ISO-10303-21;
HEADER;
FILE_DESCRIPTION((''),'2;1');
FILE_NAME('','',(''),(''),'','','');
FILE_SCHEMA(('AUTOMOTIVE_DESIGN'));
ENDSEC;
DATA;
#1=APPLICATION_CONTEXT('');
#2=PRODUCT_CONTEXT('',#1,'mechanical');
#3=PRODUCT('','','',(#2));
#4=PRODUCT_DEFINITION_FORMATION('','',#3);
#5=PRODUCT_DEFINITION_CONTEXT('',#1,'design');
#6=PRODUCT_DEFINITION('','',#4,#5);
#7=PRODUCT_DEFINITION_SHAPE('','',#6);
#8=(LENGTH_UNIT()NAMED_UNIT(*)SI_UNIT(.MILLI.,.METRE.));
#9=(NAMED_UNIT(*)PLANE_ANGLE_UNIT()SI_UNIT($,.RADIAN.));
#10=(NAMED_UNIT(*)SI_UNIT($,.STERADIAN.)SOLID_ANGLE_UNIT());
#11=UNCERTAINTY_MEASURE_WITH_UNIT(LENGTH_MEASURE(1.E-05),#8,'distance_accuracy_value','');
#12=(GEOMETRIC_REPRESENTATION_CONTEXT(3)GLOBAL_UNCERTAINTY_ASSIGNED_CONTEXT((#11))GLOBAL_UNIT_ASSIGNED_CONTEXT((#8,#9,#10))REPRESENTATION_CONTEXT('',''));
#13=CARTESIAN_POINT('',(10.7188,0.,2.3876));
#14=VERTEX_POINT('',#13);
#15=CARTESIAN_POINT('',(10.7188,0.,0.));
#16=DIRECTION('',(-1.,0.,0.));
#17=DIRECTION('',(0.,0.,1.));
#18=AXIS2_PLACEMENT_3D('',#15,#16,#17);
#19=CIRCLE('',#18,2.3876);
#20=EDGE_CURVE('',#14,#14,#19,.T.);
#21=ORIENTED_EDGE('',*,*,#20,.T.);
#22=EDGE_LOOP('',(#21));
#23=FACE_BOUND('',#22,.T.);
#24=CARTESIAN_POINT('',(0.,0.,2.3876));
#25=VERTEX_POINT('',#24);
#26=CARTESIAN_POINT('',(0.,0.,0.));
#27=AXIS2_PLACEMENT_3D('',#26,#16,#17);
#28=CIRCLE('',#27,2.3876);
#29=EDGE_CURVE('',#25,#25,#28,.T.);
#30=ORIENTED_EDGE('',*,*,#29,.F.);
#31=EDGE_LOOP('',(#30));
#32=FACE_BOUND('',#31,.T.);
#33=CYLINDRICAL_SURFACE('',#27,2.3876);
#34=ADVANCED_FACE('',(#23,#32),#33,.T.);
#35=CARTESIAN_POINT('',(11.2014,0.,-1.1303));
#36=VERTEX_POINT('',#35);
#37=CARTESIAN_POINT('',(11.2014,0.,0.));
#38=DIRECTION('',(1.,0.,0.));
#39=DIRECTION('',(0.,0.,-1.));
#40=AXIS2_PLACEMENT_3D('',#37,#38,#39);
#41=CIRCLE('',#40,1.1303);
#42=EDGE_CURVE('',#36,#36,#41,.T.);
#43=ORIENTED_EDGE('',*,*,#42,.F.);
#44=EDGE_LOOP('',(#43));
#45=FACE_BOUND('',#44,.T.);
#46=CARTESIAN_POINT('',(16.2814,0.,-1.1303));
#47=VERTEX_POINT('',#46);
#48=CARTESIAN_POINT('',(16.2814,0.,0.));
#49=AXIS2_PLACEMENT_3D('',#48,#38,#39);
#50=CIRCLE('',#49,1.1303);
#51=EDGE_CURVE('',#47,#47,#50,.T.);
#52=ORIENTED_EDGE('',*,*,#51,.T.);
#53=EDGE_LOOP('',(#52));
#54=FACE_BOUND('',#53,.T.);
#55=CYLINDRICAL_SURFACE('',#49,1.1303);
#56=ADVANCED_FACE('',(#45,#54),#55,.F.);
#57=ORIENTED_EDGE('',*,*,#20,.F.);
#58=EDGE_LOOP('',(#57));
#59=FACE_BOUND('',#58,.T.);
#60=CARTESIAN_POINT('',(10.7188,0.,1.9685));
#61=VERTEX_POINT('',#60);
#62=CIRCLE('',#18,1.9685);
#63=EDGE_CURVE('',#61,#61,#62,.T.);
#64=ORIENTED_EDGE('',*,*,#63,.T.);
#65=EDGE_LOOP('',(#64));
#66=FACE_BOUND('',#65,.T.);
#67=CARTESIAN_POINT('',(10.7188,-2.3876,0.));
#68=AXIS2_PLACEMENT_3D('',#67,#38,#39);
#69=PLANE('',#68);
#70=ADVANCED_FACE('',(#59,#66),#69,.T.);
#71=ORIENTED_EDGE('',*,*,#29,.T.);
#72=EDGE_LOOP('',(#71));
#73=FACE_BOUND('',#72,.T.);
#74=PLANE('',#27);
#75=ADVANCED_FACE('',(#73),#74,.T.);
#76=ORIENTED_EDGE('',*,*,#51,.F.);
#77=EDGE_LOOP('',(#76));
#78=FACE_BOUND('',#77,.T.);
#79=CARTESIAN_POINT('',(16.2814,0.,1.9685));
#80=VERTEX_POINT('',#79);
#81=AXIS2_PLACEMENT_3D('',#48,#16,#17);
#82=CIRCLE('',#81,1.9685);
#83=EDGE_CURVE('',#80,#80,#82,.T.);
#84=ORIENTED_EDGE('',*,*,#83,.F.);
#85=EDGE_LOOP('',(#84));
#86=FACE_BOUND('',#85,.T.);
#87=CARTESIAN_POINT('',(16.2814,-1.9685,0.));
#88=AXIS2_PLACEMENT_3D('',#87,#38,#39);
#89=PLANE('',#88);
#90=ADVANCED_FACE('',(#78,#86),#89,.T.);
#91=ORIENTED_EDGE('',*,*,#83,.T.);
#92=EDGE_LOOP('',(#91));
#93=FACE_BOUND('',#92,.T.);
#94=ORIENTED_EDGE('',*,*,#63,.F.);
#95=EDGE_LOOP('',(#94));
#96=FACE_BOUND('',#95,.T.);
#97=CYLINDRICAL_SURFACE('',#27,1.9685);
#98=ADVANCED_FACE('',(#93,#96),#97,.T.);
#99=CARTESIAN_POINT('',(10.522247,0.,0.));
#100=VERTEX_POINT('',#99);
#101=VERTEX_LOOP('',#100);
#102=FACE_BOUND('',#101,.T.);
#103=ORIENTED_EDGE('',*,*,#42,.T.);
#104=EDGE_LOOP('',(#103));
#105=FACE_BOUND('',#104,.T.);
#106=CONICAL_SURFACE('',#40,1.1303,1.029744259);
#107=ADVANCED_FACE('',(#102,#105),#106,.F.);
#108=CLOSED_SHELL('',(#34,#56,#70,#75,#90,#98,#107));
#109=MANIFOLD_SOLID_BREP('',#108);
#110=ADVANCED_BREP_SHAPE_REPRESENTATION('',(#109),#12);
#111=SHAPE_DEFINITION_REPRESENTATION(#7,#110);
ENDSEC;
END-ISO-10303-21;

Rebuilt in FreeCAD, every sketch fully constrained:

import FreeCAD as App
import Part
import Sketcher
Q = App.Units.Quantity

doc = App.newDocument("Part")
params = doc.addObject("Spreadsheet::Sheet", "Params")
for row, (alias, value) in enumerate([
    ("sketch1_width", "0.422 in"),
    ("sketch1_width2", "0.219 in"),
    ("sketch1_height", "0.094 in"),
    ("revolution_angle", "360 deg"),
    ("sketch2_diameter", "0.089 in"),
    ("hole_diameter", "0.089 in"),
    ("hole_depth", "0.2 in"),
], start=1):
    params.set(f"A{row}", alias)
    params.set(f"B{row}", "=" + value)
    params.setAlias(f"B{row}", alias)

body = doc.addObject("PartDesign::Body", "Body")

sketch1 = body.newObject("Sketcher::SketchObject", "Sketch")
sketch1.AttachmentSupport = (doc.getObject("XY_Plane"), [""])
sketch1.MapMode = "FlatFace"
sketch1.addGeometry(Part.LineSegment(App.Vector(0, 0, 0), App.Vector(0, -2.39, 0)), False)
sketch1.addGeometry(Part.LineSegment(App.Vector(0, -2.39, 0), App.Vector(10.72, -2.39, 0)), False)
sketch1.addGeometry(Part.LineSegment(App.Vector(10.72, -2.39, 0), App.Vector(10.72, -1.97, 0)), False)
sketch1.addGeometry(Part.LineSegment(App.Vector(10.72, -1.97, 0), App.Vector(16.28, -1.97, 0)), False)
sketch1.addGeometry(Part.LineSegment(App.Vector(16.28, -1.97, 0), App.Vector(16.28, 0, 0)), False)
sketch1.addGeometry(Part.LineSegment(App.Vector(16.28, 0, 0), App.Vector(0, 0, 0)), False)
sketch1.addConstraint(Sketcher.Constraint("Coincident", 0, 2, 1, 1))
sketch1.addConstraint(Sketcher.Constraint("Coincident", 1, 2, 2, 1))
sketch1.addConstraint(Sketcher.Constraint("Coincident", 2, 2, 3, 1))
sketch1.addConstraint(Sketcher.Constraint("Coincident", 3, 2, 4, 1))
sketch1.addConstraint(Sketcher.Constraint("Coincident", 4, 2, 5, 1))
sketch1.addConstraint(Sketcher.Constraint("Coincident", 5, 2, 0, 1))
sketch1.addConstraint(Sketcher.Constraint("Vertical", 0))
sketch1.addConstraint(Sketcher.Constraint("Horizontal", 1))
sketch1.addConstraint(Sketcher.Constraint("Vertical", 2))
sketch1.addConstraint(Sketcher.Constraint("Horizontal", 3))
sketch1.addConstraint(Sketcher.Constraint("Vertical", 4))
sketch1.addConstraint(Sketcher.Constraint("Horizontal", 5))
sketch1.addConstraint(Sketcher.Constraint("Coincident", 5, 2, -1, 1))
sketch1.addConstraint(Sketcher.Constraint("DistanceX", 1, 1, 1, 2, Q("0.422 in")))
sketch1.addConstraint(Sketcher.Constraint("DistanceX", 3, 1, 3, 2, Q("0.219 in")))
sketch1.addConstraint(Sketcher.Constraint("DistanceY", 0, 2, 0, 1, Q("0.094 in")))
sketch1.addConstraint(Sketcher.Constraint("DistanceY", 2, 1, 2, 2, Q("0.0165 in")))
sketch1.setExpression("Constraints[13]", "Params.sketch1_width")
sketch1.setExpression("Constraints[14]", "Params.sketch1_width2")
sketch1.setExpression("Constraints[15]", "Params.sketch1_height")
revolution = body.newObject("PartDesign::Revolution", "Revolution")
revolution.Profile = sketch1
revolution.ReferenceAxis = (sketch1, ["H_Axis"])
revolution.setExpression("Angle", "Params.revolution_angle")

sketch2 = body.newObject("Sketcher::SketchObject", "Sketch001")
sketch2.AttachmentSupport = (doc.getObject("YZ_Plane"), [""])
sketch2.MapMode = "FlatFace"
sketch2.AttachmentOffset = App.Placement(App.Vector(0, 0, 0.641 * 25.4), App.Rotation())
sketch2.addGeometry(Part.Circle(App.Vector(0, 0, 0), App.Vector(0, 0, 1), 1.1), False)
sketch2.addConstraint(Sketcher.Constraint("Coincident", 0, 3, -1, 1))
sketch2.addConstraint(Sketcher.Constraint("Diameter", 0, Q("0.089 in")))
sketch2.setExpression("Constraints[1]", "Params.sketch2_diameter")
doc.recompute()
hole = body.newObject("PartDesign::Hole", "Hole")
hole.Profile = sketch2
hole.ThreadType = "None"
hole.setExpression("Diameter", "Params.hole_diameter")
hole.DepthType = "Dimension"
hole.setExpression("Depth", "Params.hole_depth")
hole.DrillPoint = "Angled"
hole.DrillPointAngle = 118

doc.recompute()
